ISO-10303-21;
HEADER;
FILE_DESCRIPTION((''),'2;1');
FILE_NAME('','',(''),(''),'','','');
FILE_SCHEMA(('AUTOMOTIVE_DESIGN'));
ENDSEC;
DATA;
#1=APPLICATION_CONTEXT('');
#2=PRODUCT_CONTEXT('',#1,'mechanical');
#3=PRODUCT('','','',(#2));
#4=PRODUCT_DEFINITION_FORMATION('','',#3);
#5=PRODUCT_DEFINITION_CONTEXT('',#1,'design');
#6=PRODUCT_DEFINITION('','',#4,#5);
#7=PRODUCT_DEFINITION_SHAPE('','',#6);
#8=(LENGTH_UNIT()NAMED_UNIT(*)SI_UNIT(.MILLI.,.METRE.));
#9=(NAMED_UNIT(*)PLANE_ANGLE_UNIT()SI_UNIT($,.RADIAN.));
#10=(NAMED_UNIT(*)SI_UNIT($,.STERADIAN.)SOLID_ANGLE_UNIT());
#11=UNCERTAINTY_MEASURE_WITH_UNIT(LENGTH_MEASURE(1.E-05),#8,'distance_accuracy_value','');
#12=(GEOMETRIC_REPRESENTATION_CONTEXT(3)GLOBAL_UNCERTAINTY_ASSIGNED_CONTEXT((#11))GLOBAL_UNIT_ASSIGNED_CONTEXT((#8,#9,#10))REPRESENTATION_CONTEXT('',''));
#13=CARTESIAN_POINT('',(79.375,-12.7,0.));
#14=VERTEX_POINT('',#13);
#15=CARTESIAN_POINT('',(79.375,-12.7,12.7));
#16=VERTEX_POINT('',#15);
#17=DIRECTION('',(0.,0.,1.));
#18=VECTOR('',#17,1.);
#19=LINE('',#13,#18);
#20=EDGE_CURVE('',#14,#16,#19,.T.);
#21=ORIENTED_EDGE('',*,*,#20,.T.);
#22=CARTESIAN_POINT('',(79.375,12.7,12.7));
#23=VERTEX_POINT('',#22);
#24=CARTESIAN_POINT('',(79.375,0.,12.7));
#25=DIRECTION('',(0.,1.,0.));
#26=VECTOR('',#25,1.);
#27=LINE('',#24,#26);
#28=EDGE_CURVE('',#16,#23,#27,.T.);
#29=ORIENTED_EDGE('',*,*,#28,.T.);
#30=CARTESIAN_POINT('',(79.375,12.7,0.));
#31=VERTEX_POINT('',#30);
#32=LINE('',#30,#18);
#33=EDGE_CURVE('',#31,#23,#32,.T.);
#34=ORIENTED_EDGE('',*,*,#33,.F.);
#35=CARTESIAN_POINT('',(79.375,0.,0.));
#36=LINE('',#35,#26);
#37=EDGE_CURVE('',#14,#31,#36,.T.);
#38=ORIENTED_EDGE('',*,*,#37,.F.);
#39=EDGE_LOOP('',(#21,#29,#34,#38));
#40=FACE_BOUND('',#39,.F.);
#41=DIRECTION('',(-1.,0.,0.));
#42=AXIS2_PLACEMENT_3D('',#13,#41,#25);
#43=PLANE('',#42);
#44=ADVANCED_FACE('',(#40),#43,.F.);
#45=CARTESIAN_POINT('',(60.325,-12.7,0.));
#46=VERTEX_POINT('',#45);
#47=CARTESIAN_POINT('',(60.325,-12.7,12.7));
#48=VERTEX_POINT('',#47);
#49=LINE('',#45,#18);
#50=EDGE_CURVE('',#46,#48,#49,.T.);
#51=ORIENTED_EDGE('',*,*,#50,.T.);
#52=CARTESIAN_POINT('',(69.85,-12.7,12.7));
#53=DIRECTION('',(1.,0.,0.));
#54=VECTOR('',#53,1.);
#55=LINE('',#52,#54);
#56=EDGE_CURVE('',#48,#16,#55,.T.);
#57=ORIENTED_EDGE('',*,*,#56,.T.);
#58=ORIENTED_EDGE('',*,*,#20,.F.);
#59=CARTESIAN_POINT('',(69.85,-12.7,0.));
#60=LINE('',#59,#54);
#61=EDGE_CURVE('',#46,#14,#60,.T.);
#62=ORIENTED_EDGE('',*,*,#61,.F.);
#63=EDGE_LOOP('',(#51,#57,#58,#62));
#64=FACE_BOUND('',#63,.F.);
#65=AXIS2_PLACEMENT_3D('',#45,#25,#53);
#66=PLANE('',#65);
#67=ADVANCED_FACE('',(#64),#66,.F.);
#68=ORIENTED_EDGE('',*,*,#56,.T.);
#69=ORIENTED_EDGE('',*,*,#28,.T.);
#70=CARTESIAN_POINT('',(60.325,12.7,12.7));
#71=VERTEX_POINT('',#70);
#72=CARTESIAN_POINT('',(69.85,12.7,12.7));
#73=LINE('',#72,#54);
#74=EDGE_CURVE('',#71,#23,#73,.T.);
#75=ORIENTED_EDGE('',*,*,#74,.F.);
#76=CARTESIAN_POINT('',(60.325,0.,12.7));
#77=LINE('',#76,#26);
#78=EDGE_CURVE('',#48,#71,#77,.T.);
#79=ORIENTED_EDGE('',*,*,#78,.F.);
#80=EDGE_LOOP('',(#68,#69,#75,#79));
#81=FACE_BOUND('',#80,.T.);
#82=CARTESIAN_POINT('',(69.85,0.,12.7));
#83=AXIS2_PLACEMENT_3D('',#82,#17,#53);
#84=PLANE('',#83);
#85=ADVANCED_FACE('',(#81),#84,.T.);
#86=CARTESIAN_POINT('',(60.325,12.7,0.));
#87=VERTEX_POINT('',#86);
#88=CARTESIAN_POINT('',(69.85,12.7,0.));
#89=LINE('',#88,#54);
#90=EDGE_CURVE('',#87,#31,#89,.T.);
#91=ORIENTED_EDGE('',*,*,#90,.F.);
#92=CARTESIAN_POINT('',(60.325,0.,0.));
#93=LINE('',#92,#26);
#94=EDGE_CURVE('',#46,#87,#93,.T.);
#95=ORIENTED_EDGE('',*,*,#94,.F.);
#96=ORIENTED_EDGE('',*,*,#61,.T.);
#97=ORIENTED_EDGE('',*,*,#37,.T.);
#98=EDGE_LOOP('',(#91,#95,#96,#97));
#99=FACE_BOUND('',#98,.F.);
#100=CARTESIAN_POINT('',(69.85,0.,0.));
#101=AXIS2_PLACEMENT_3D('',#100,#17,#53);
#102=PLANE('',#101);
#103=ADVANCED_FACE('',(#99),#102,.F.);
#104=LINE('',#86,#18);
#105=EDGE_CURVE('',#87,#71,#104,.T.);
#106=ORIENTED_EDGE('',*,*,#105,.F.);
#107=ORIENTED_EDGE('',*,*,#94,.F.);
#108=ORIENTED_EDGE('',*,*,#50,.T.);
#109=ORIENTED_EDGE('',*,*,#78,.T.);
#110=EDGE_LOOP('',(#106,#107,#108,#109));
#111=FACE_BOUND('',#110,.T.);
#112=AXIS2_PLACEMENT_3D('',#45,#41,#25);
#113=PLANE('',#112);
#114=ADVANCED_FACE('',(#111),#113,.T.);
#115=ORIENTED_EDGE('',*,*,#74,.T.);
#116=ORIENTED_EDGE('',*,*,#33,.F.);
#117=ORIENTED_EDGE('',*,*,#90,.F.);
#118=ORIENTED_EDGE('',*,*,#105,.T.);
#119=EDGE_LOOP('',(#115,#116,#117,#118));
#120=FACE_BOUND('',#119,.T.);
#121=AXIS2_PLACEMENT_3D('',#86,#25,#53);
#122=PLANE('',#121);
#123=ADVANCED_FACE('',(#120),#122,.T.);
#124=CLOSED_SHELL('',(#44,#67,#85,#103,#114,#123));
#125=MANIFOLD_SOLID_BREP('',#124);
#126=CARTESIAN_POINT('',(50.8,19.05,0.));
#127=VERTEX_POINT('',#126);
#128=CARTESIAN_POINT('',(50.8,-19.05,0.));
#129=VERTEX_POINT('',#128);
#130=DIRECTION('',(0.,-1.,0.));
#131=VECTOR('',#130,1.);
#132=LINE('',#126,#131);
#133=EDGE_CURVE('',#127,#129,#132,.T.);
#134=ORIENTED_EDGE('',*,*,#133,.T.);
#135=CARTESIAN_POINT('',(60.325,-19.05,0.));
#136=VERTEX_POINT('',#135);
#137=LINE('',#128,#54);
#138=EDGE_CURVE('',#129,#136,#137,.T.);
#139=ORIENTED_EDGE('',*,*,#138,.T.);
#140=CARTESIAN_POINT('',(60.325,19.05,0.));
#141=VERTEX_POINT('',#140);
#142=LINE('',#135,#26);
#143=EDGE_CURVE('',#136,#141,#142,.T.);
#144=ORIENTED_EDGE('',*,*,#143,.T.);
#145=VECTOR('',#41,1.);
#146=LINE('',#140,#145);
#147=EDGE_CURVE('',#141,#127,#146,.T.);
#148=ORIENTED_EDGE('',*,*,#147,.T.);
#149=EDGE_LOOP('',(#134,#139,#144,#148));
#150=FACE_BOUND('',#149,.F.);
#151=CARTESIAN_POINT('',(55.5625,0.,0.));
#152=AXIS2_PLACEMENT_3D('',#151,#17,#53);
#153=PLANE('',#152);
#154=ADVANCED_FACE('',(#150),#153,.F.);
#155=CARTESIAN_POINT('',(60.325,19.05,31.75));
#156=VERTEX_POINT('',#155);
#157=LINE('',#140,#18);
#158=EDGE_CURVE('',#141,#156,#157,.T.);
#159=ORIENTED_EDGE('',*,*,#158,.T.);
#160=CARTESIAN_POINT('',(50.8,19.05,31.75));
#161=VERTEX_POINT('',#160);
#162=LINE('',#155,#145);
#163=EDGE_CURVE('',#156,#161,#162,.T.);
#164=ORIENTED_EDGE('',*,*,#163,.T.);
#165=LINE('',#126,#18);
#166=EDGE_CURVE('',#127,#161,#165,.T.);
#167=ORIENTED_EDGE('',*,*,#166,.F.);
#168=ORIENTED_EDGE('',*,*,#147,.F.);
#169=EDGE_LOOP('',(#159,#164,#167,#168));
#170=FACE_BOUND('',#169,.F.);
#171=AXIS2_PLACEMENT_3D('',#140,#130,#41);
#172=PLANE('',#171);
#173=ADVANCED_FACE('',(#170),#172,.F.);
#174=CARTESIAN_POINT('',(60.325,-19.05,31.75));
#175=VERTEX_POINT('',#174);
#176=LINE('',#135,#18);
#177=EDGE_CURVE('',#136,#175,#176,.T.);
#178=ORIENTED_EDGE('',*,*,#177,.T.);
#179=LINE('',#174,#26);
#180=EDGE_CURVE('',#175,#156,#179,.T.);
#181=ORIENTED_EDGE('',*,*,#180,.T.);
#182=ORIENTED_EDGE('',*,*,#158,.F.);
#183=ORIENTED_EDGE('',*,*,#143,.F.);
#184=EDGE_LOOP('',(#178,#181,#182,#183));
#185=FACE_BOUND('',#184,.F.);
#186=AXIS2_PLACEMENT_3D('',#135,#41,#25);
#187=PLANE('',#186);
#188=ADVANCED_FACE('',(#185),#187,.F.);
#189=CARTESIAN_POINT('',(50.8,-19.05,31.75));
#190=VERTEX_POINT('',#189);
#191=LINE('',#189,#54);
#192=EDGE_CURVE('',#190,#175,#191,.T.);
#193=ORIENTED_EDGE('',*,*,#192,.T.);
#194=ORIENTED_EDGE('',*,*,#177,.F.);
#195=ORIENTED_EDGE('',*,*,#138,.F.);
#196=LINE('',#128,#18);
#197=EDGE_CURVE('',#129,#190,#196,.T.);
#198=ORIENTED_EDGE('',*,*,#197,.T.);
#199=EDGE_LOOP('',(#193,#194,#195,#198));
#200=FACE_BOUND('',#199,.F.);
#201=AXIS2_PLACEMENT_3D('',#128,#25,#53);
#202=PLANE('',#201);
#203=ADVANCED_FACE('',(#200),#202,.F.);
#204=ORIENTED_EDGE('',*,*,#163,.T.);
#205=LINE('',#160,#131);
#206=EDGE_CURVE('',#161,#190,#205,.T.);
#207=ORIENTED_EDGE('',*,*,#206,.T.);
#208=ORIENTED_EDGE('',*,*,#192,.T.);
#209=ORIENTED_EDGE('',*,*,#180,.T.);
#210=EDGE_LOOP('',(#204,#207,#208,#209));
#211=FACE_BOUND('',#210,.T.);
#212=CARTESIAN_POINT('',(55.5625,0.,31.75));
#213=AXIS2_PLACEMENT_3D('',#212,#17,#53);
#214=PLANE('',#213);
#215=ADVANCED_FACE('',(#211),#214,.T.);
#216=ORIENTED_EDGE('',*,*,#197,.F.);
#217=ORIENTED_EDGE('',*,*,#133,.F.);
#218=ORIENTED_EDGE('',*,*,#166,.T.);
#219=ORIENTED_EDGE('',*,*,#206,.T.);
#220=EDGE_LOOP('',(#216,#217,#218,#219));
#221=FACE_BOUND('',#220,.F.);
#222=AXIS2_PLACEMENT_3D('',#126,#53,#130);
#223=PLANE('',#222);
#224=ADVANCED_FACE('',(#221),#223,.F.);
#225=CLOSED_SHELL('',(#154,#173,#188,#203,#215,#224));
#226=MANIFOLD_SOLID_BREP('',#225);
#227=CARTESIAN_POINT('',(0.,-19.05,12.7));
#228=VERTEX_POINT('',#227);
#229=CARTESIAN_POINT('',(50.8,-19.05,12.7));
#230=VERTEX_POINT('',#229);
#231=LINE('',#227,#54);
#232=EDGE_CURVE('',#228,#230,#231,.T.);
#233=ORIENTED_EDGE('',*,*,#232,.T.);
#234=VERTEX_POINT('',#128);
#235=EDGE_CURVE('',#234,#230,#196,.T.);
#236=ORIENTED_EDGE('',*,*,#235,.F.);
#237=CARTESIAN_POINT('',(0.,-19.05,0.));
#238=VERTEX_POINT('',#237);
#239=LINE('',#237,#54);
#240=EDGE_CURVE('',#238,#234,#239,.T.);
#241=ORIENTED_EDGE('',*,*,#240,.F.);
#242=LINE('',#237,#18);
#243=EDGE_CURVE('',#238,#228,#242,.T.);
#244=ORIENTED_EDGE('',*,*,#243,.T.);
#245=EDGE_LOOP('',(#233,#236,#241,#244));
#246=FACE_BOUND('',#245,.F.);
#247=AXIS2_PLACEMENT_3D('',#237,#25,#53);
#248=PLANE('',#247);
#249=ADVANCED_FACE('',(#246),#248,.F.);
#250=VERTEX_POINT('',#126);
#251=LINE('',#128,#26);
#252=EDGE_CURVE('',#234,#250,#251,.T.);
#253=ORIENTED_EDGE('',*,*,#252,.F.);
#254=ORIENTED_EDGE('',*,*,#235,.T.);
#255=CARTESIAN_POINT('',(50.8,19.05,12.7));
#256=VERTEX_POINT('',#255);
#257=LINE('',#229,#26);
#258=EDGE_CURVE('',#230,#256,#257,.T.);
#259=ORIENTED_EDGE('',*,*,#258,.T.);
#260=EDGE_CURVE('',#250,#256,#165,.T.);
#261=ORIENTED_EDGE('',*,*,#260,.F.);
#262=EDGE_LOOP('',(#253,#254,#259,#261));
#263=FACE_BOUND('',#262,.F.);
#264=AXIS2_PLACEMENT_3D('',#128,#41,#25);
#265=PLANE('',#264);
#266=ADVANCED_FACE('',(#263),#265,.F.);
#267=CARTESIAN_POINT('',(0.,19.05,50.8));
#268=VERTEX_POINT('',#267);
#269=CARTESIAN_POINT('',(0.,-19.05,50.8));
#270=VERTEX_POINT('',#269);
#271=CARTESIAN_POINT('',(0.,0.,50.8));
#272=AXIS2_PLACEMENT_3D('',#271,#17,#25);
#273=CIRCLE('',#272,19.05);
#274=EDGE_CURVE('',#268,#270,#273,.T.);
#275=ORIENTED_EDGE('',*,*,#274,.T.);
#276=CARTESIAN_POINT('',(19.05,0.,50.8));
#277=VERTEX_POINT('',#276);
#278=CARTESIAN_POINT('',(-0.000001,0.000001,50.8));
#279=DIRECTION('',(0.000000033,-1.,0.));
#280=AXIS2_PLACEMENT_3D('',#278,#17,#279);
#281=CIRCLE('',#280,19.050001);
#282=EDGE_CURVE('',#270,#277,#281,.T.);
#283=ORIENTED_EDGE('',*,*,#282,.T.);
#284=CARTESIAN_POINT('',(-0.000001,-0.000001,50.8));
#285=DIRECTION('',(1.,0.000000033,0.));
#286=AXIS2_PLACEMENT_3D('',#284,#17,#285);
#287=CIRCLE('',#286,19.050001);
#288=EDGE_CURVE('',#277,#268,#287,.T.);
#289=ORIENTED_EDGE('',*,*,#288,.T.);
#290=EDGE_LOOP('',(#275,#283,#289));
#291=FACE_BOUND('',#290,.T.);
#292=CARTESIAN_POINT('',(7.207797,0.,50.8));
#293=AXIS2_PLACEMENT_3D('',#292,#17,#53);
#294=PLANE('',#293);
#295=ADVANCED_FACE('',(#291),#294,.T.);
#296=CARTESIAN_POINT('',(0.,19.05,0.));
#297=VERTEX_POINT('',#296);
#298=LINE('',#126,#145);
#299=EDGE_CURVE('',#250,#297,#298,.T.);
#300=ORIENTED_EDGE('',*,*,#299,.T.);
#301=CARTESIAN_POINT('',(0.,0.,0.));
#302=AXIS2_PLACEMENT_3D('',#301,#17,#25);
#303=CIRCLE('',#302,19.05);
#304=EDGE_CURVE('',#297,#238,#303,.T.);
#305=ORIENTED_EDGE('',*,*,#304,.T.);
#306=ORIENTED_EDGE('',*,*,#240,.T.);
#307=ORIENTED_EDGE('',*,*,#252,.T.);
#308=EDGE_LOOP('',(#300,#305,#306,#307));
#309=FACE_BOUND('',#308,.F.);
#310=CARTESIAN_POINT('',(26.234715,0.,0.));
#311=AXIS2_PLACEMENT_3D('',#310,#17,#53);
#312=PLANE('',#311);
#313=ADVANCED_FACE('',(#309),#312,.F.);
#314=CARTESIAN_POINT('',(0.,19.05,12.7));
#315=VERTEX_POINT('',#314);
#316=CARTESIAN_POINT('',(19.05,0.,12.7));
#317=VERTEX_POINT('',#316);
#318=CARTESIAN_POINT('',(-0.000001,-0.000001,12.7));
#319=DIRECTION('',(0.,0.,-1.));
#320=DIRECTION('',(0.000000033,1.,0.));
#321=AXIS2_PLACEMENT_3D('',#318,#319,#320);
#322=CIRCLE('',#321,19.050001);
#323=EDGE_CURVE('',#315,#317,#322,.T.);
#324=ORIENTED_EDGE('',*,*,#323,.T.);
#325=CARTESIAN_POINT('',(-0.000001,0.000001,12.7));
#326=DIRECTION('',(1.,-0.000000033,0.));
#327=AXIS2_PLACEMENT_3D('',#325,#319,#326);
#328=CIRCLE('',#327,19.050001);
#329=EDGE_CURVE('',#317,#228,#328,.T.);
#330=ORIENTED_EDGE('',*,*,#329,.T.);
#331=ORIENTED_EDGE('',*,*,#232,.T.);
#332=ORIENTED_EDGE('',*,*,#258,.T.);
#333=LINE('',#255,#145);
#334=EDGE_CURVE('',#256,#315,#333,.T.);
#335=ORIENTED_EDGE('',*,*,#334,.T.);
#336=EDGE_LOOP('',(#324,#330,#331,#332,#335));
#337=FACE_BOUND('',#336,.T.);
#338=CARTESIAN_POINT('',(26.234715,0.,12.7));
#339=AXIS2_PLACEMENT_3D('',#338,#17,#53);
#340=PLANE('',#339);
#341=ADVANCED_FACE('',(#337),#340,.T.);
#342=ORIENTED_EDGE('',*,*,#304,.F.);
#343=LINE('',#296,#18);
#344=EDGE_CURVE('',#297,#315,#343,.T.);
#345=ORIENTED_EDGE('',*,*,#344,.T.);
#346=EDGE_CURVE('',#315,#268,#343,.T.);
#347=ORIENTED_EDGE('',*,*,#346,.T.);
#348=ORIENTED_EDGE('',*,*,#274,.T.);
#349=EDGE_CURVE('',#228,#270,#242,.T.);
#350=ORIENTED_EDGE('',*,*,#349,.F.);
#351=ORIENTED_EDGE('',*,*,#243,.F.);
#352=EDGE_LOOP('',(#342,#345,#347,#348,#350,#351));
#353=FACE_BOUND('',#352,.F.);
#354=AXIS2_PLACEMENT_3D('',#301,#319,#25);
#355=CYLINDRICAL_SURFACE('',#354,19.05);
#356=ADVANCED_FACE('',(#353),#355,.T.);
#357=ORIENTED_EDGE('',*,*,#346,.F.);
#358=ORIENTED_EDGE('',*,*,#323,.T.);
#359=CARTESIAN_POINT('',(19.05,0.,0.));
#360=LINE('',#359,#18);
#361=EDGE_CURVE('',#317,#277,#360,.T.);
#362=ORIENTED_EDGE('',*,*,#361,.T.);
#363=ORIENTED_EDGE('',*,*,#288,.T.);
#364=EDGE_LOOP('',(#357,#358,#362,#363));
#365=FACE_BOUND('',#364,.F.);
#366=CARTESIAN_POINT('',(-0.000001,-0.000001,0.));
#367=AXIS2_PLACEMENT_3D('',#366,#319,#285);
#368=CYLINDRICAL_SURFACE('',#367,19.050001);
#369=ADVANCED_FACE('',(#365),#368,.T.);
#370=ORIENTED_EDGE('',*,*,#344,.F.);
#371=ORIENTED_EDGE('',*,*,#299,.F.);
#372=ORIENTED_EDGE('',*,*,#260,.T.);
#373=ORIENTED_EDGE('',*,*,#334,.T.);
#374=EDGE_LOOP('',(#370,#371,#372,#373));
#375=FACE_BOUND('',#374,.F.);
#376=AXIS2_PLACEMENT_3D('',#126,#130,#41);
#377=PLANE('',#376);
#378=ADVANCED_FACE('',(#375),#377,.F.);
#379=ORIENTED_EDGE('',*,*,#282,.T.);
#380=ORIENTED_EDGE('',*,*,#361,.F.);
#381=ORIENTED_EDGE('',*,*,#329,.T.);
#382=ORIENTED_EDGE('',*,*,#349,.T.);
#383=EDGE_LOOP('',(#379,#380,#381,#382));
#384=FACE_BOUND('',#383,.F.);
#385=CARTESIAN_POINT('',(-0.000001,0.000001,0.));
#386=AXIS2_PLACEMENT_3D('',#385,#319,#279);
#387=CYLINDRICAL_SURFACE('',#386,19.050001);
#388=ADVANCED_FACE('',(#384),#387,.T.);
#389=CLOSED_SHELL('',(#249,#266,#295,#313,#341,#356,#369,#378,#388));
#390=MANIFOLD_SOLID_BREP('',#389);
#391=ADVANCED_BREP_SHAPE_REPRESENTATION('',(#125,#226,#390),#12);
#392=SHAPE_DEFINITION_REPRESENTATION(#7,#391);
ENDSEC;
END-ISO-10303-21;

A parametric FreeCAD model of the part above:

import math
import FreeCAD as App
import Part
import Sketcher

V = App.Vector
Q = App.Units.Quantity

doc = App.newDocument("Part")
body = doc.addObject("PartDesign::Body", "Body")
body.AllowCompound = True

sketch1 = body.newObject("Sketcher::SketchObject", "Sketch")
sketch1.AttachmentSupport = (doc.getObject("XY_Plane"), [""])
sketch1.MapMode = "FlatFace"
sketch1.addGeometry([
    Part.ArcOfCircle(Part.Circle(V(-0.000001, 0.000001, 0), V(0, 0, 1), 19.050001), math.radians(-89.999998), math.radians(-0.000002)),
    Part.ArcOfCircle(Part.Circle(V(-0.000001, -0.000001, 0), V(0, 0, 1), 19.050001), math.radians(0.000002), math.radians(89.999998)),
    Part.ArcOfCircle(Part.Circle(V(0, 0, 0), V(0, 0, 1), 19.05), math.radians(90), math.radians(270)),
], False)
sketch1.addConstraint([
    Sketcher.Constraint("Tangent", 0, 2, 1, 1),
    Sketcher.Constraint("Tangent", 1, 2, 2, 1),
    Sketcher.Constraint("Tangent", 2, 2, 0, 1),
    Sketcher.Constraint("Coincident", 0, 3, -1, 1),
    Sketcher.Constraint("PointOnObject", 0, 2, -1),
    Sketcher.Constraint("PointOnObject", 1, 2, -2),
    Sketcher.Constraint("PointOnObject", 2, 2, -2),
    Sketcher.Constraint("Radius", 0, Q("0.75 in")),
])
pad1 = body.newObject("PartDesign::Pad", "Pad")
pad1.Profile = sketch1
pad1.Length = Q("2 in")

sketch2 = body.newObject("Sketcher::SketchObject", "Sketch001")
sketch2.AttachmentSupport = (doc.getObject("XY_Plane"), [""])
sketch2.MapMode = "FlatFace"
sketch2.addGeometry([
    Part.ArcOfCircle(Part.Circle(V(-0.000001, -0.000001, 0), V(0, 0, 1), 19.050001), math.radians(0.000002), math.radians(89.999998)),
    Part.ArcOfCircle(Part.Circle(V(-0.000001, 0.000001, 0), V(0, 0, 1), 19.050001), math.radians(-89.999998), math.radians(-0.000002)),
    Part.LineSegment(V(0, -19.05, 0), V(50.8, -19.05, 0)),
    Part.LineSegment(V(50.8, -19.05, 0), V(50.8, 19.05, 0)),
    Part.LineSegment(V(50.8, 19.05, 0), V(0, 19.05, 0)),
    Part.LineSegment(V(60.325, 12.7, 0), V(60.325, -12.7, 0)),
    Part.LineSegment(V(60.325, -12.7, 0), V(79.375, -12.7, 0)),
    Part.LineSegment(V(79.375, -12.7, 0), V(79.375, 12.7, 0)),
    Part.LineSegment(V(79.375, 12.7, 0), V(60.325, 12.7, 0)),
], False)
sketch2.addConstraint([
    Sketcher.Constraint("Tangent", 0, 1, 1, 2),
    Sketcher.Constraint("Tangent", 1, 1, 2, 1),
    Sketcher.Constraint("Coincident", 2, 2, 3, 1),
    Sketcher.Constraint("Coincident", 3, 2, 4, 1),
    Sketcher.Constraint("Tangent", 4, 2, 0, 2),
    Sketcher.Constraint("Coincident", 5, 2, 6, 1),
    Sketcher.Constraint("Coincident", 6, 2, 7, 1),
    Sketcher.Constraint("Coincident", 7, 2, 8, 1),
    Sketcher.Constraint("Coincident", 8, 2, 5, 1),
    Sketcher.Constraint("Horizontal", 2),
    Sketcher.Constraint("Vertical", 3),
    Sketcher.Constraint("Horizontal", 4),
    Sketcher.Constraint("Vertical", 5),
    Sketcher.Constraint("Horizontal", 6),
    Sketcher.Constraint("Vertical", 7),
    Sketcher.Constraint("Horizontal", 8),
    Sketcher.Constraint("Coincident", 0, 3, -1, 1),
    Sketcher.Constraint("Equal", 0, 1),
    Sketcher.Constraint("PointOnObject", 0, 1, -1),
    Sketcher.Constraint("DistanceX", 2, 1, 2, 2, Q("2 in")),
    Sketcher.Constraint("DistanceY", 5, 2, 5, 1, Q("1 in")),
    Sketcher.Constraint("Radius", 0, Q("0.75 in")),
    Sketcher.Constraint("DistanceX", 6, 1, 6, 2, Q("0.75 in")),
    Sketcher.Constraint("DistanceY", 5, 2, -1, 1, Q("0.5 in")),
    Sketcher.Constraint("DistanceX", -1, 1, 5, 2, Q("2.375 in")),
])
pad2 = body.newObject("PartDesign::Pad", "Pad001")
pad2.Profile = sketch2
pad2.Length = Q("0.5 in")
body2 = doc.addObject("PartDesign::Body", "Body001")

sketch3 = body2.newObject("Sketcher::SketchObject", "Sketch002")
sketch3.AttachmentSupport = (doc.getObject("XY_Plane001"), [""])
sketch3.MapMode = "FlatFace"
sketch3.addGeometry([
    Part.LineSegment(V(60.325, 19.05, 0), V(50.8, 19.05, 0)),
    Part.LineSegment(V(50.8, 19.05, 0), V(50.8, -19.05, 0)),
    Part.LineSegment(V(50.8, -19.05, 0), V(60.325, -19.05, 0)),
    Part.LineSegment(V(60.325, -19.05, 0), V(60.325, 19.05, 0)),
], False)
sketch3.addConstraint([
    Sketcher.Constraint("Coincident", 0, 2, 1, 1),
    Sketcher.Constraint("Coincident", 1, 2, 2, 1),
    Sketcher.Constraint("Coincident", 2, 2, 3, 1),
    Sketcher.Constraint("Coincident", 3, 2, 0, 1),
    Sketcher.Constraint("Horizontal", 0),
    Sketcher.Constraint("Vertical", 1),
    Sketcher.Constraint("Horizontal", 2),
    Sketcher.Constraint("Vertical", 3),
    Sketcher.Constraint("DistanceY", 1, 2, 1, 1, Q("1.5 in")),
    Sketcher.Constraint("DistanceX", -1, 1, 0, 2, Q("2 in")),
    Sketcher.Constraint("DistanceX", 0, 2, 0, 1, Q("0.375 in")),
    Sketcher.Constraint("DistanceY", -1, 1, 0, 2, Q("0.75 in")),
])
pad3 = body2.newObject("PartDesign::Pad", "Pad002")
pad3.Profile = sketch3
pad3.Length = Q("1.25 in")

doc.recompute()
